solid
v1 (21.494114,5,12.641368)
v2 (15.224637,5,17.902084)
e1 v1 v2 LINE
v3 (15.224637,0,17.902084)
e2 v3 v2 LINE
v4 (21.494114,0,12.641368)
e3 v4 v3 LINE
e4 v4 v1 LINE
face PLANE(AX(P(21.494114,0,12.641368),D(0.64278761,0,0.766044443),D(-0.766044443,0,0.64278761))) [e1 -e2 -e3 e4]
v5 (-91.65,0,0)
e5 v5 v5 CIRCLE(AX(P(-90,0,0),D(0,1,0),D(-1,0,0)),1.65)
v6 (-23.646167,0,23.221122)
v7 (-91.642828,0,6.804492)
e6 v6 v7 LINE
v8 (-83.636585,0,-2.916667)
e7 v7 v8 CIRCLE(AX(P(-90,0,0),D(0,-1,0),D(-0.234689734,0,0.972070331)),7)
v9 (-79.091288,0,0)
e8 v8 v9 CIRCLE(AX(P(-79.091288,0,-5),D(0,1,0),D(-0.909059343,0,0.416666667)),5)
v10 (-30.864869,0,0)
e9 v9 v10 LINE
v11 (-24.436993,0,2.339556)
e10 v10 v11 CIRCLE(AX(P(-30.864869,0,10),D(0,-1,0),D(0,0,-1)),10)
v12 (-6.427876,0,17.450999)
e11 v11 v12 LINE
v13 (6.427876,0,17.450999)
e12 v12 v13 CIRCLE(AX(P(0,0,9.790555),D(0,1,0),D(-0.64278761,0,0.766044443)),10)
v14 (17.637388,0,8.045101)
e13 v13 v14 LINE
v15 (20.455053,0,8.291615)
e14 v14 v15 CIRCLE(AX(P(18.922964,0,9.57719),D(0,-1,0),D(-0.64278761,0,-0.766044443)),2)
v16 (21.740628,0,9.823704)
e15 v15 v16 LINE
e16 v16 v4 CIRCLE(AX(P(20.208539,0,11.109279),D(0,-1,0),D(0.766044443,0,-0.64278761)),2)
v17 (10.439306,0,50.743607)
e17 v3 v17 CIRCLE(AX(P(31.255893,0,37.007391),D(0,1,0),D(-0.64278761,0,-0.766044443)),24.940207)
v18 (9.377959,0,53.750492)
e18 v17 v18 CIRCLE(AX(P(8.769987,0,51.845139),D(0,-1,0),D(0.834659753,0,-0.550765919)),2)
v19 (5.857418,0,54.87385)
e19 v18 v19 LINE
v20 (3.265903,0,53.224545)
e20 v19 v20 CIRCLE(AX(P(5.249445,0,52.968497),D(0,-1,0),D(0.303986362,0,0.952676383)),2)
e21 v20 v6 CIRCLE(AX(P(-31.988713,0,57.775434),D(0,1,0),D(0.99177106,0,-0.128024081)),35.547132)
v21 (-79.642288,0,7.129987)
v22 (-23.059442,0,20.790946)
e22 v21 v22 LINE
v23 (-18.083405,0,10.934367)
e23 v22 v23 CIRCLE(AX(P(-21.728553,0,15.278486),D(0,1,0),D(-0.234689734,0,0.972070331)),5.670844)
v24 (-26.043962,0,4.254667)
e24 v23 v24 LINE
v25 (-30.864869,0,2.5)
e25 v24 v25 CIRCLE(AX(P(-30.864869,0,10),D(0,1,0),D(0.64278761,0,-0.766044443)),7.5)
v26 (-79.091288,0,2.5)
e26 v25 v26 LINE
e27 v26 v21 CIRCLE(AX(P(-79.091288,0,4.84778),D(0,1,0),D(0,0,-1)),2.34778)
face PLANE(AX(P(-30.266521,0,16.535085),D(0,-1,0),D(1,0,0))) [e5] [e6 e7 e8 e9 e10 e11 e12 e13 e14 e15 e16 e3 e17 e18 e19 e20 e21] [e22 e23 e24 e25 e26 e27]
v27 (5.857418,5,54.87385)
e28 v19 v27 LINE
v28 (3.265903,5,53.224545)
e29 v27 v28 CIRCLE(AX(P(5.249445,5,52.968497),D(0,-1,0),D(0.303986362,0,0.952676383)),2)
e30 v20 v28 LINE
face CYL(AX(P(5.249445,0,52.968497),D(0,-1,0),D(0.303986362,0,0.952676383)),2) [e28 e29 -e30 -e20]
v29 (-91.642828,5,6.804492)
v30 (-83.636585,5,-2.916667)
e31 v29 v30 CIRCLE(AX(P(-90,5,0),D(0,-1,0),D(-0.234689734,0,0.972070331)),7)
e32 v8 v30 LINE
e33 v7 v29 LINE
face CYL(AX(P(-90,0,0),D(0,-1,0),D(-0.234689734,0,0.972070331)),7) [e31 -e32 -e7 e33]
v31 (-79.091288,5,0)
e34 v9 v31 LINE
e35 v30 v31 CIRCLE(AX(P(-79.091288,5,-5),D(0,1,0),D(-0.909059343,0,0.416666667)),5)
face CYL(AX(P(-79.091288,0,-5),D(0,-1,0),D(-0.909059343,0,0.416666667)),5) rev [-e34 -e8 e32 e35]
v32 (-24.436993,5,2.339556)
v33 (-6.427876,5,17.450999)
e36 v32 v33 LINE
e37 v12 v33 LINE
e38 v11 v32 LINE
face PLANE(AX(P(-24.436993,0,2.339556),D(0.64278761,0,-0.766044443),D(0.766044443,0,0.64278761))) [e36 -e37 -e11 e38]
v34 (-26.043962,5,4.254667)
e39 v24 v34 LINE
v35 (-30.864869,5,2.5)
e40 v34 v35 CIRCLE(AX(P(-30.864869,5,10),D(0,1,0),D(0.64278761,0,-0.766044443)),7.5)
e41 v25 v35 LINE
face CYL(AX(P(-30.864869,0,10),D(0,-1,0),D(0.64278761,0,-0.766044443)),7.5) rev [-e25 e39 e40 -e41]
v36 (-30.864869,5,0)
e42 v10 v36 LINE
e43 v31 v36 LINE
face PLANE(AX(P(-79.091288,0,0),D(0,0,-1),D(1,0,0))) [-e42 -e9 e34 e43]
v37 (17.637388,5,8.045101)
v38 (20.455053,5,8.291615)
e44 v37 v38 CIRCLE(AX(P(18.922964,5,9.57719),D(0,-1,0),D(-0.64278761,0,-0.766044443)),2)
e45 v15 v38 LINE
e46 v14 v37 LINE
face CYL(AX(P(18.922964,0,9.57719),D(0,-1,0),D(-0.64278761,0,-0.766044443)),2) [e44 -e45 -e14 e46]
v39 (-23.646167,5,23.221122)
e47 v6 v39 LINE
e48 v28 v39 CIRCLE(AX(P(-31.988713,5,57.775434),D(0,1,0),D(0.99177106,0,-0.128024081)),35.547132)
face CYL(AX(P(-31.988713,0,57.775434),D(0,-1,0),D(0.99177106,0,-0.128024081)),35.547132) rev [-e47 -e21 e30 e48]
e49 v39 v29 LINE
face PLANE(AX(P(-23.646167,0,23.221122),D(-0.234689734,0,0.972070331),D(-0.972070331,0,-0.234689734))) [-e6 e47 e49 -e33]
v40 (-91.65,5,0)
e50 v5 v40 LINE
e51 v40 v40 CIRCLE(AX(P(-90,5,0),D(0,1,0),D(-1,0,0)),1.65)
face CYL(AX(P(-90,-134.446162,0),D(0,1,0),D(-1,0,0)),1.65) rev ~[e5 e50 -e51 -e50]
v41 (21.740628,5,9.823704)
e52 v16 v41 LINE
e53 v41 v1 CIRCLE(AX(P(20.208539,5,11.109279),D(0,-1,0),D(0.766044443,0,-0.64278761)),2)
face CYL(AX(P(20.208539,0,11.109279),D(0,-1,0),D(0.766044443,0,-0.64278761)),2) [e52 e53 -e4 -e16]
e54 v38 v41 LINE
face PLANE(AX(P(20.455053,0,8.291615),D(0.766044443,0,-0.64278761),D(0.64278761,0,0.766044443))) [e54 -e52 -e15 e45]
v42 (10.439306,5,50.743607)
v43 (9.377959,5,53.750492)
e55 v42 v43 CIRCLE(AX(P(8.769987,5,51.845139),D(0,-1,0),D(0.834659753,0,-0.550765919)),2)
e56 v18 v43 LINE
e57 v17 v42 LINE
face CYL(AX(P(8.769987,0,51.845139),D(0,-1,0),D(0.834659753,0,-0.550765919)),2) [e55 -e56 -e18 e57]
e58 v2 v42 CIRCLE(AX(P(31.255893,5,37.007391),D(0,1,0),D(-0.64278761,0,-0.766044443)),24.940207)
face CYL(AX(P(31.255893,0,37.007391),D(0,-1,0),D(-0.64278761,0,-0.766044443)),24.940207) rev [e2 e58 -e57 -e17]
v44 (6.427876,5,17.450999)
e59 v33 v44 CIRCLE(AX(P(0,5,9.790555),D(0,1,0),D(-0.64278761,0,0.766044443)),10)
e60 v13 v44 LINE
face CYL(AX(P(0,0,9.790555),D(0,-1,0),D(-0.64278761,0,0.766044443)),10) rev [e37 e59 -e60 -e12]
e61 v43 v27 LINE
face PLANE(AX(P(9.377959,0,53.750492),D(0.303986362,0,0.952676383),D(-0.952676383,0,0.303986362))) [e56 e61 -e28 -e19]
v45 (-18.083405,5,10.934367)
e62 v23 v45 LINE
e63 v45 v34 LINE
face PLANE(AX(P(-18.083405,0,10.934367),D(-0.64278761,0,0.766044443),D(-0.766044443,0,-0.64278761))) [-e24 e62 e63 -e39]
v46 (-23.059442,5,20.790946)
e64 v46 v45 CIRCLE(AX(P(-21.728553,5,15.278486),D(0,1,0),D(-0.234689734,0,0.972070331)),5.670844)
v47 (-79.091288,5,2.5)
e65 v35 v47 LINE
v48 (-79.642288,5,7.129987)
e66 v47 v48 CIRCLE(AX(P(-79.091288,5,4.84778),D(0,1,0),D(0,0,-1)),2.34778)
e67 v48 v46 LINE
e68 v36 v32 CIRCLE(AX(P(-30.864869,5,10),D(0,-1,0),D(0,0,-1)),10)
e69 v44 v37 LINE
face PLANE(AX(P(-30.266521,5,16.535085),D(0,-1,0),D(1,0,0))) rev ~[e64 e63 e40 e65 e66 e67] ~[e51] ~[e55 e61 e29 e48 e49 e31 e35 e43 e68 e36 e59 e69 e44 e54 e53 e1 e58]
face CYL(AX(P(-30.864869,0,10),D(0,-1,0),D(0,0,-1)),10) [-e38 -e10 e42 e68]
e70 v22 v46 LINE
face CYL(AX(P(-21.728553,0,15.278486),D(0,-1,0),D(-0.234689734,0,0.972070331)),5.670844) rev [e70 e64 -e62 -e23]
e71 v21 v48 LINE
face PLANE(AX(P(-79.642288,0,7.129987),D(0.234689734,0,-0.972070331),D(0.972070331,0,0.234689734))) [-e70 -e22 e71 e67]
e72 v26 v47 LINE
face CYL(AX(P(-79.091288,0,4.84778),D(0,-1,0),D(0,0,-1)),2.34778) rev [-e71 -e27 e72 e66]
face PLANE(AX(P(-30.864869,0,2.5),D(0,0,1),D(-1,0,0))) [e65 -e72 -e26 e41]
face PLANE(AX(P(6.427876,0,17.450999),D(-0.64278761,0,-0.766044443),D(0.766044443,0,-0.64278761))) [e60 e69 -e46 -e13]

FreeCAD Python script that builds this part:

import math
import FreeCAD as App
import Part
import Sketcher
from FreeCAD import Vector
Q = App.Units.Quantity

doc = App.newDocument("Part")
body = doc.addObject("PartDesign::Body", "Body")

# Sketch on XZ plane
sketch1 = body.newObject("Sketcher::SketchObject", "Sketch")
sketch1.AttachmentSupport = (doc.getObject("XZ_Plane"), [""])
sketch1.MapMode = "FlatFace"
sketch1.addGeometry(Part.LineSegment(Vector(-23.646167, 23.221122, 0), Vector(-91.642828, 6.804492, 0)), False)
sketch1.addGeometry(Part.ArcOfCircle(Part.Circle(Vector(-90, 0, 0), Vector(0, 0, 1), 7), math.radians(103.573334), math.radians(335.375682)), False)
sketch1.addGeometry(Part.ArcOfCircle(Part.Circle(Vector(-79.091288, -5, 0), Vector(0, 0, 1), 5), math.radians(90), math.radians(155.375682)), False)
sketch1.addGeometry(Part.LineSegment(Vector(-79.091288, 0, 0), Vector(-30.864869, 0, 0)), False)
sketch1.addGeometry(Part.ArcOfCircle(Part.Circle(Vector(-30.864869, 10, 0), Vector(0, 0, 1), 10), math.radians(-90), math.radians(-50)), False)
sketch1.addGeometry(Part.LineSegment(Vector(-24.436993, 2.339556, 0), Vector(-6.427876, 17.450999, 0)), False)
sketch1.addGeometry(Part.ArcOfCircle(Part.Circle(Vector(0, 9.790555, 0), Vector(0, 0, 1), 10), math.radians(50), math.radians(130)), False)
sketch1.addGeometry(Part.LineSegment(Vector(6.427876, 17.450999, 0), Vector(17.637388, 8.045101, 0)), False)
sketch1.addGeometry(Part.ArcOfCircle(Part.Circle(Vector(18.922964, 9.57719, 0), Vector(0, 0, 1), 2), math.radians(-130), math.radians(-40)), False)
sketch1.addGeometry(Part.LineSegment(Vector(20.455053, 8.291615, 0), Vector(21.740628, 9.823704, 0)), False)
sketch1.addGeometry(Part.ArcOfCircle(Part.Circle(Vector(20.208539, 11.109279, 0), Vector(0, 0, 1), 2), math.radians(-40), math.radians(50)), False)
sketch1.addGeometry(Part.LineSegment(Vector(21.494114, 12.641368, 0), Vector(15.224637, 17.902084, 0)), False)
sketch1.addGeometry(Part.ArcOfCircle(Part.Circle(Vector(31.255893, 37.007391, 0), Vector(0, 0, 1), 24.940207), math.radians(146.580426), math.radians(230)), False)
sketch1.addGeometry(Part.ArcOfCircle(Part.Circle(Vector(8.769987, 51.845139, 0), Vector(0, 0, 1), 2), math.radians(-33.419574), math.radians(72.302809)), False)
sketch1.addGeometry(Part.LineSegment(Vector(9.377959, 53.750492, 0), Vector(5.857418, 54.87385, 0)), False)
sketch1.addGeometry(Part.ArcOfCircle(Part.Circle(Vector(5.249445, 52.968497, 0), Vector(0, 0, 1), 2), math.radians(72.302809), math.radians(172.644574)), False)
sketch1.addGeometry(Part.ArcOfCircle(Part.Circle(Vector(-31.988713, 57.775434, 0), Vector(0, 0, 1), 35.547132), math.radians(-76.426666), math.radians(-7.355426)), False)
sketch1.addGeometry(Part.LineSegment(Vector(-18.083405, 10.934368, 0), Vector(-26.043962, 4.254667, 0)), False)
sketch1.addGeometry(Part.ArcOfCircle(Part.Circle(Vector(-30.864869, 10, 0), Vector(0, 0, 1), 7.5), math.radians(-90), math.radians(-50)), False)
sketch1.addGeometry(Part.LineSegment(Vector(-30.864869, 2.5, 0), Vector(-79.091288, 2.5, 0)), False)
sketch1.addGeometry(Part.ArcOfCircle(Part.Circle(Vector(-79.091288, 4.84778, 0), Vector(0, 0, 1), 2.34778), math.radians(103.573334), math.radians(270)), False)
sketch1.addGeometry(Part.LineSegment(Vector(-79.642288, 7.129987, 0), Vector(-23.059442, 20.790946, 0)), False)
sketch1.addGeometry(Part.ArcOfCircle(Part.Circle(Vector(-21.728553, 15.278486, 0), Vector(0, 0, 1), 5.670844), math.radians(-50), math.radians(103.573334)), False)
sketch1.addConstraint(Sketcher.Constraint("Coincident", 0, 2, 1, 1))
sketch1.addConstraint(Sketcher.Constraint("Coincident", 1, 2, 2, 2))
sketch1.addConstraint(Sketcher.Constraint("Coincident", 2, 1, 3, 1))
sketch1.addConstraint(Sketcher.Constraint("Coincident", 3, 2, 4, 1))
sketch1.addConstraint(Sketcher.Constraint("Coincident", 4, 2, 5, 1))
sketch1.addConstraint(Sketcher.Constraint("Coincident", 5, 2, 6, 2))
sketch1.addConstraint(Sketcher.Constraint("Coincident", 6, 1, 7, 1))
sketch1.addConstraint(Sketcher.Constraint("Coincident", 7, 2, 8, 1))
sketch1.addConstraint(Sketcher.Constraint("Coincident", 8, 2, 9, 1))
sketch1.addConstraint(Sketcher.Constraint("Coincident", 9, 2, 10, 1))
sketch1.addConstraint(Sketcher.Constraint("Coincident", 10, 2, 11, 1))
sketch1.addConstraint(Sketcher.Constraint("Coincident", 11, 2, 12, 2))
sketch1.addConstraint(Sketcher.Constraint("Coincident", 12, 1, 13, 1))
sketch1.addConstraint(Sketcher.Constraint("Coincident", 13, 2, 14, 1))
sketch1.addConstraint(Sketcher.Constraint("Coincident", 14, 2, 15, 1))
sketch1.addConstraint(Sketcher.Constraint("Coincident", 15, 2, 16, 2))
sketch1.addConstraint(Sketcher.Constraint("Coincident", 16, 1, 0, 1))
sketch1.addConstraint(Sketcher.Constraint("Coincident", 17, 2, 18, 2))
sketch1.addConstraint(Sketcher.Constraint("Coincident", 18, 1, 19, 1))
sketch1.addConstraint(Sketcher.Constraint("Coincident", 19, 2, 20, 2))
sketch1.addConstraint(Sketcher.Constraint("Coincident", 20, 1, 21, 1))
sketch1.addConstraint(Sketcher.Constraint("Coincident", 21, 2, 22, 2))
sketch1.addConstraint(Sketcher.Constraint("Coincident", 22, 1, 17, 1))
sketch1.addConstraint(Sketcher.Constraint("Horizontal", 3))
sketch1.addConstraint(Sketcher.Constraint("Horizontal", 19))
sketch1.addConstraint(Sketcher.Constraint("Coincident", 18, 3, 4, 3))
sketch1.addConstraint(Sketcher.Constraint("PointOnObject", 1, 3, -1))
sketch1.addConstraint(Sketcher.Constraint("PointOnObject", 6, 3, -2))
sketch1.addConstraint(Sketcher.Constraint("PointOnObject", 2, 1, -1))
sketch1.addConstraint(Sketcher.Constraint("Radius", 1, Q("7 mm")))
sketch1.addConstraint(Sketcher.Constraint("Radius", 2, Q("5 mm")))
sketch1.addConstraint(Sketcher.Constraint("Radius", 4, Q("10 mm")))
sketch1.addConstraint(Sketcher.Constraint("Radius", 6, Q("10 mm")))
sketch1.addConstraint(Sketcher.Constraint("Radius", 8, Q("2 mm")))
sketch1.addConstraint(Sketcher.Constraint("Radius", 10, Q("2 mm")))
sketch1.addConstraint(Sketcher.Constraint("Radius", 13, Q("2 mm")))
sketch1.addConstraint(Sketcher.Constraint("Radius", 15, Q("2 mm")))
sketch1.addConstraint(Sketcher.Constraint("Radius", 18, Q("7.5 mm")))
sketch1.addConstraint(Sketcher.Constraint("Distance", 9, Q("2 mm")))
sketch1.addConstraint(Sketcher.Constraint("DistanceX", 1, 3, -1, 1, Q("90 mm")))
sketch1.addConstraint(Sketcher.Constraint("Radius", 16, Q("35.547132 mm")))
sketch1.addConstraint(Sketcher.Constraint("Radius", 20, Q("2.34778 mm")))
sketch1.addConstraint(Sketcher.Constraint("DistanceY", -1, 1, 5, 2, Q("17.450999 mm")))
sketch1.addConstraint(Sketcher.Constraint("DistanceY", -1, 1, 6, 1, Q("17.450999 mm")))
sketch1.addConstraint(Sketcher.Constraint("Radius", 12, Q("24.940207 mm")))
sketch1.addConstraint(Sketcher.Constraint("Radius", 22, Q("5.670844 mm")))
sketch1.addConstraint(Sketcher.Constraint("DistanceY", 4, 2, 6, 3, Q("7.450999 mm")))
sketch1.addConstraint(Sketcher.Constraint("DistanceX", 20, 1, 20, 3, Q("0.551 mm")))
sketch1.addConstraint(Sketcher.Constraint("DistanceX", 20, 1, 19, 2, Q("0.551 mm")))
sketch1.addConstraint(Sketcher.Constraint("DistanceX", 20, 1, 2, 1, Q("0.551 mm")))
sketch1.addConstraint(Sketcher.Constraint("DistanceX", 3, 1, 3, 2, Q("48.226419 mm")))
sketch1.addConstraint(Sketcher.Constraint("DistanceX", 19, 2, 19, 1, Q("48.226419 mm")))
sketch1.addConstraint(Sketcher.Constraint("DistanceY", -1, 1, 7, 2, Q("8.045101 mm")))
sketch1.addConstraint(Sketcher.Constraint("DistanceY", 8, 3, 12, 3, Q("27.430201 mm")))
sketch1.addConstraint(Sketcher.Constraint("DistanceX", 16, 3, 13, 3, Q("40.7587 mm")))
sketch1.addConstraint(Sketcher.Constraint("DistanceX", 11, 2, 10, 3, Q("4.983902 mm")))
sketch1.addConstraint(Sketcher.Constraint("DistanceY", 12, 3, 13, 2, Q("16.743101 mm")))
sketch1.addConstraint(Sketcher.Constraint("DistanceY", 17, 2, 22, 1, Q("6.679701 mm")))
sketch1.addConstraint(Sketcher.Constraint("Distance", 0, Q("69.950352 mm")))
sketch1.addConstraint(Sketcher.Constraint("Distance", 7, Q("14.632979 mm")))
sketch1.addConstraint(Sketcher.Constraint("Distance", 11, Q("8.184221 mm")))
sketch1.addConstraint(Sketcher.Constraint("Distance", 17, Q("10.39177 mm")))
sketch1.addConstraint(Sketcher.Constraint("DistanceX", 4, 3, -1, 1, Q("30.864869 mm")))
sketch1.addConstraint(Sketcher.Constraint("DistanceY", -1, 1, 8, 3, Q("9.57719 mm")))
sketch1.addConstraint(Sketcher.Constraint("DistanceX", -1, 1, 10, 3, Q("20.208539 mm")))
sketch1.addConstraint(Sketcher.Constraint("DistanceY", -1, 1, 10, 3, Q("11.109279 mm")))
sketch1.addConstraint(Sketcher.Constraint("DistanceY", -1, 1, 13, 3, Q("51.845139 mm")))
sketch1.addConstraint(Sketcher.Constraint("DistanceX", 0, 2, -1, 1, Q("91.642828 mm")))
sketch1.addConstraint(Sketcher.Constraint("DistanceX", 3, 2, -1, 1, Q("30.864869 mm")))
sketch1.addConstraint(Sketcher.Constraint("DistanceX", -1, 1, 7, 2, Q("17.637388 mm")))
sketch1.addConstraint(Sketcher.Constraint("DistanceY", -1, 1, 10, 2, Q("12.641368 mm")))
sketch1.addConstraint(Sketcher.Constraint("DistanceX", -1, 1, 14, 2, Q("5.857418 mm")))
sketch1.addConstraint(Sketcher.Constraint("DistanceY", -1, 1, 14, 2, Q("54.87385 mm")))
sketch1.addConstraint(Sketcher.Constraint("DistanceY", -1, 1, 16, 1, Q("23.221122 mm")))
sketch1.addConstraint(Sketcher.Constraint("DistanceY", 6, 3, 22, 3, Q("5.487932 mm")))
sketch1.addConstraint(Sketcher.Constraint("DistanceY", 1, 2, 0, 2, Q("9.721159 mm")))
sketch1.addConstraint(Sketcher.Constraint("DistanceX", 8, 3, 8, 2, Q("1.532089 mm")))
sketch1.addConstraint(Sketcher.Constraint("DistanceX", 13, 3, 12, 1, Q("1.66932 mm")))
sketch1.addConstraint(Sketcher.Constraint("DistanceY", 15, 3, 15, 2, Q("0.256048 mm")))
sketch1.addConstraint(Sketcher.Constraint("DistanceX", 17, 2, 4, 2, Q("1.606969 mm")))
sketch1.addConstraint(Sketcher.Constraint("DistanceX", 21, 2, 22, 3, Q("1.330889 mm")))
pad1 = body.newObject("PartDesign::Pad", "Pad")
pad1.Profile = sketch1
pad1.Length = 5
pad1.Reversed = True

# Sketch on XZ plane
sketch2 = body.newObject("Sketcher::SketchObject", "Sketch001")
sketch2.AttachmentSupport = (doc.getObject("XZ_Plane"), [""])
sketch2.MapMode = "FlatFace"
sketch2.addGeometry(Part.Circle(Vector(-90, 0, 0), Vector(0, 0, 1), 1.6), False)
sketch2.addConstraint(Sketcher.Constraint("PointOnObject", 0, 3, -1))
sketch2.addConstraint(Sketcher.Constraint("Diameter", 0, Q("3.3 mm")))
sketch2.addConstraint(Sketcher.Constraint("DistanceX", 0, 3, -1, 1, Q("90 mm")))
doc.recompute()
hole = body.newObject("PartDesign::Hole", "Hole")
hole.Profile = sketch2
hole.ThreadType = "None"
hole.Diameter = 3.3
hole.DepthType = "ThroughAll"

doc.recompute()
